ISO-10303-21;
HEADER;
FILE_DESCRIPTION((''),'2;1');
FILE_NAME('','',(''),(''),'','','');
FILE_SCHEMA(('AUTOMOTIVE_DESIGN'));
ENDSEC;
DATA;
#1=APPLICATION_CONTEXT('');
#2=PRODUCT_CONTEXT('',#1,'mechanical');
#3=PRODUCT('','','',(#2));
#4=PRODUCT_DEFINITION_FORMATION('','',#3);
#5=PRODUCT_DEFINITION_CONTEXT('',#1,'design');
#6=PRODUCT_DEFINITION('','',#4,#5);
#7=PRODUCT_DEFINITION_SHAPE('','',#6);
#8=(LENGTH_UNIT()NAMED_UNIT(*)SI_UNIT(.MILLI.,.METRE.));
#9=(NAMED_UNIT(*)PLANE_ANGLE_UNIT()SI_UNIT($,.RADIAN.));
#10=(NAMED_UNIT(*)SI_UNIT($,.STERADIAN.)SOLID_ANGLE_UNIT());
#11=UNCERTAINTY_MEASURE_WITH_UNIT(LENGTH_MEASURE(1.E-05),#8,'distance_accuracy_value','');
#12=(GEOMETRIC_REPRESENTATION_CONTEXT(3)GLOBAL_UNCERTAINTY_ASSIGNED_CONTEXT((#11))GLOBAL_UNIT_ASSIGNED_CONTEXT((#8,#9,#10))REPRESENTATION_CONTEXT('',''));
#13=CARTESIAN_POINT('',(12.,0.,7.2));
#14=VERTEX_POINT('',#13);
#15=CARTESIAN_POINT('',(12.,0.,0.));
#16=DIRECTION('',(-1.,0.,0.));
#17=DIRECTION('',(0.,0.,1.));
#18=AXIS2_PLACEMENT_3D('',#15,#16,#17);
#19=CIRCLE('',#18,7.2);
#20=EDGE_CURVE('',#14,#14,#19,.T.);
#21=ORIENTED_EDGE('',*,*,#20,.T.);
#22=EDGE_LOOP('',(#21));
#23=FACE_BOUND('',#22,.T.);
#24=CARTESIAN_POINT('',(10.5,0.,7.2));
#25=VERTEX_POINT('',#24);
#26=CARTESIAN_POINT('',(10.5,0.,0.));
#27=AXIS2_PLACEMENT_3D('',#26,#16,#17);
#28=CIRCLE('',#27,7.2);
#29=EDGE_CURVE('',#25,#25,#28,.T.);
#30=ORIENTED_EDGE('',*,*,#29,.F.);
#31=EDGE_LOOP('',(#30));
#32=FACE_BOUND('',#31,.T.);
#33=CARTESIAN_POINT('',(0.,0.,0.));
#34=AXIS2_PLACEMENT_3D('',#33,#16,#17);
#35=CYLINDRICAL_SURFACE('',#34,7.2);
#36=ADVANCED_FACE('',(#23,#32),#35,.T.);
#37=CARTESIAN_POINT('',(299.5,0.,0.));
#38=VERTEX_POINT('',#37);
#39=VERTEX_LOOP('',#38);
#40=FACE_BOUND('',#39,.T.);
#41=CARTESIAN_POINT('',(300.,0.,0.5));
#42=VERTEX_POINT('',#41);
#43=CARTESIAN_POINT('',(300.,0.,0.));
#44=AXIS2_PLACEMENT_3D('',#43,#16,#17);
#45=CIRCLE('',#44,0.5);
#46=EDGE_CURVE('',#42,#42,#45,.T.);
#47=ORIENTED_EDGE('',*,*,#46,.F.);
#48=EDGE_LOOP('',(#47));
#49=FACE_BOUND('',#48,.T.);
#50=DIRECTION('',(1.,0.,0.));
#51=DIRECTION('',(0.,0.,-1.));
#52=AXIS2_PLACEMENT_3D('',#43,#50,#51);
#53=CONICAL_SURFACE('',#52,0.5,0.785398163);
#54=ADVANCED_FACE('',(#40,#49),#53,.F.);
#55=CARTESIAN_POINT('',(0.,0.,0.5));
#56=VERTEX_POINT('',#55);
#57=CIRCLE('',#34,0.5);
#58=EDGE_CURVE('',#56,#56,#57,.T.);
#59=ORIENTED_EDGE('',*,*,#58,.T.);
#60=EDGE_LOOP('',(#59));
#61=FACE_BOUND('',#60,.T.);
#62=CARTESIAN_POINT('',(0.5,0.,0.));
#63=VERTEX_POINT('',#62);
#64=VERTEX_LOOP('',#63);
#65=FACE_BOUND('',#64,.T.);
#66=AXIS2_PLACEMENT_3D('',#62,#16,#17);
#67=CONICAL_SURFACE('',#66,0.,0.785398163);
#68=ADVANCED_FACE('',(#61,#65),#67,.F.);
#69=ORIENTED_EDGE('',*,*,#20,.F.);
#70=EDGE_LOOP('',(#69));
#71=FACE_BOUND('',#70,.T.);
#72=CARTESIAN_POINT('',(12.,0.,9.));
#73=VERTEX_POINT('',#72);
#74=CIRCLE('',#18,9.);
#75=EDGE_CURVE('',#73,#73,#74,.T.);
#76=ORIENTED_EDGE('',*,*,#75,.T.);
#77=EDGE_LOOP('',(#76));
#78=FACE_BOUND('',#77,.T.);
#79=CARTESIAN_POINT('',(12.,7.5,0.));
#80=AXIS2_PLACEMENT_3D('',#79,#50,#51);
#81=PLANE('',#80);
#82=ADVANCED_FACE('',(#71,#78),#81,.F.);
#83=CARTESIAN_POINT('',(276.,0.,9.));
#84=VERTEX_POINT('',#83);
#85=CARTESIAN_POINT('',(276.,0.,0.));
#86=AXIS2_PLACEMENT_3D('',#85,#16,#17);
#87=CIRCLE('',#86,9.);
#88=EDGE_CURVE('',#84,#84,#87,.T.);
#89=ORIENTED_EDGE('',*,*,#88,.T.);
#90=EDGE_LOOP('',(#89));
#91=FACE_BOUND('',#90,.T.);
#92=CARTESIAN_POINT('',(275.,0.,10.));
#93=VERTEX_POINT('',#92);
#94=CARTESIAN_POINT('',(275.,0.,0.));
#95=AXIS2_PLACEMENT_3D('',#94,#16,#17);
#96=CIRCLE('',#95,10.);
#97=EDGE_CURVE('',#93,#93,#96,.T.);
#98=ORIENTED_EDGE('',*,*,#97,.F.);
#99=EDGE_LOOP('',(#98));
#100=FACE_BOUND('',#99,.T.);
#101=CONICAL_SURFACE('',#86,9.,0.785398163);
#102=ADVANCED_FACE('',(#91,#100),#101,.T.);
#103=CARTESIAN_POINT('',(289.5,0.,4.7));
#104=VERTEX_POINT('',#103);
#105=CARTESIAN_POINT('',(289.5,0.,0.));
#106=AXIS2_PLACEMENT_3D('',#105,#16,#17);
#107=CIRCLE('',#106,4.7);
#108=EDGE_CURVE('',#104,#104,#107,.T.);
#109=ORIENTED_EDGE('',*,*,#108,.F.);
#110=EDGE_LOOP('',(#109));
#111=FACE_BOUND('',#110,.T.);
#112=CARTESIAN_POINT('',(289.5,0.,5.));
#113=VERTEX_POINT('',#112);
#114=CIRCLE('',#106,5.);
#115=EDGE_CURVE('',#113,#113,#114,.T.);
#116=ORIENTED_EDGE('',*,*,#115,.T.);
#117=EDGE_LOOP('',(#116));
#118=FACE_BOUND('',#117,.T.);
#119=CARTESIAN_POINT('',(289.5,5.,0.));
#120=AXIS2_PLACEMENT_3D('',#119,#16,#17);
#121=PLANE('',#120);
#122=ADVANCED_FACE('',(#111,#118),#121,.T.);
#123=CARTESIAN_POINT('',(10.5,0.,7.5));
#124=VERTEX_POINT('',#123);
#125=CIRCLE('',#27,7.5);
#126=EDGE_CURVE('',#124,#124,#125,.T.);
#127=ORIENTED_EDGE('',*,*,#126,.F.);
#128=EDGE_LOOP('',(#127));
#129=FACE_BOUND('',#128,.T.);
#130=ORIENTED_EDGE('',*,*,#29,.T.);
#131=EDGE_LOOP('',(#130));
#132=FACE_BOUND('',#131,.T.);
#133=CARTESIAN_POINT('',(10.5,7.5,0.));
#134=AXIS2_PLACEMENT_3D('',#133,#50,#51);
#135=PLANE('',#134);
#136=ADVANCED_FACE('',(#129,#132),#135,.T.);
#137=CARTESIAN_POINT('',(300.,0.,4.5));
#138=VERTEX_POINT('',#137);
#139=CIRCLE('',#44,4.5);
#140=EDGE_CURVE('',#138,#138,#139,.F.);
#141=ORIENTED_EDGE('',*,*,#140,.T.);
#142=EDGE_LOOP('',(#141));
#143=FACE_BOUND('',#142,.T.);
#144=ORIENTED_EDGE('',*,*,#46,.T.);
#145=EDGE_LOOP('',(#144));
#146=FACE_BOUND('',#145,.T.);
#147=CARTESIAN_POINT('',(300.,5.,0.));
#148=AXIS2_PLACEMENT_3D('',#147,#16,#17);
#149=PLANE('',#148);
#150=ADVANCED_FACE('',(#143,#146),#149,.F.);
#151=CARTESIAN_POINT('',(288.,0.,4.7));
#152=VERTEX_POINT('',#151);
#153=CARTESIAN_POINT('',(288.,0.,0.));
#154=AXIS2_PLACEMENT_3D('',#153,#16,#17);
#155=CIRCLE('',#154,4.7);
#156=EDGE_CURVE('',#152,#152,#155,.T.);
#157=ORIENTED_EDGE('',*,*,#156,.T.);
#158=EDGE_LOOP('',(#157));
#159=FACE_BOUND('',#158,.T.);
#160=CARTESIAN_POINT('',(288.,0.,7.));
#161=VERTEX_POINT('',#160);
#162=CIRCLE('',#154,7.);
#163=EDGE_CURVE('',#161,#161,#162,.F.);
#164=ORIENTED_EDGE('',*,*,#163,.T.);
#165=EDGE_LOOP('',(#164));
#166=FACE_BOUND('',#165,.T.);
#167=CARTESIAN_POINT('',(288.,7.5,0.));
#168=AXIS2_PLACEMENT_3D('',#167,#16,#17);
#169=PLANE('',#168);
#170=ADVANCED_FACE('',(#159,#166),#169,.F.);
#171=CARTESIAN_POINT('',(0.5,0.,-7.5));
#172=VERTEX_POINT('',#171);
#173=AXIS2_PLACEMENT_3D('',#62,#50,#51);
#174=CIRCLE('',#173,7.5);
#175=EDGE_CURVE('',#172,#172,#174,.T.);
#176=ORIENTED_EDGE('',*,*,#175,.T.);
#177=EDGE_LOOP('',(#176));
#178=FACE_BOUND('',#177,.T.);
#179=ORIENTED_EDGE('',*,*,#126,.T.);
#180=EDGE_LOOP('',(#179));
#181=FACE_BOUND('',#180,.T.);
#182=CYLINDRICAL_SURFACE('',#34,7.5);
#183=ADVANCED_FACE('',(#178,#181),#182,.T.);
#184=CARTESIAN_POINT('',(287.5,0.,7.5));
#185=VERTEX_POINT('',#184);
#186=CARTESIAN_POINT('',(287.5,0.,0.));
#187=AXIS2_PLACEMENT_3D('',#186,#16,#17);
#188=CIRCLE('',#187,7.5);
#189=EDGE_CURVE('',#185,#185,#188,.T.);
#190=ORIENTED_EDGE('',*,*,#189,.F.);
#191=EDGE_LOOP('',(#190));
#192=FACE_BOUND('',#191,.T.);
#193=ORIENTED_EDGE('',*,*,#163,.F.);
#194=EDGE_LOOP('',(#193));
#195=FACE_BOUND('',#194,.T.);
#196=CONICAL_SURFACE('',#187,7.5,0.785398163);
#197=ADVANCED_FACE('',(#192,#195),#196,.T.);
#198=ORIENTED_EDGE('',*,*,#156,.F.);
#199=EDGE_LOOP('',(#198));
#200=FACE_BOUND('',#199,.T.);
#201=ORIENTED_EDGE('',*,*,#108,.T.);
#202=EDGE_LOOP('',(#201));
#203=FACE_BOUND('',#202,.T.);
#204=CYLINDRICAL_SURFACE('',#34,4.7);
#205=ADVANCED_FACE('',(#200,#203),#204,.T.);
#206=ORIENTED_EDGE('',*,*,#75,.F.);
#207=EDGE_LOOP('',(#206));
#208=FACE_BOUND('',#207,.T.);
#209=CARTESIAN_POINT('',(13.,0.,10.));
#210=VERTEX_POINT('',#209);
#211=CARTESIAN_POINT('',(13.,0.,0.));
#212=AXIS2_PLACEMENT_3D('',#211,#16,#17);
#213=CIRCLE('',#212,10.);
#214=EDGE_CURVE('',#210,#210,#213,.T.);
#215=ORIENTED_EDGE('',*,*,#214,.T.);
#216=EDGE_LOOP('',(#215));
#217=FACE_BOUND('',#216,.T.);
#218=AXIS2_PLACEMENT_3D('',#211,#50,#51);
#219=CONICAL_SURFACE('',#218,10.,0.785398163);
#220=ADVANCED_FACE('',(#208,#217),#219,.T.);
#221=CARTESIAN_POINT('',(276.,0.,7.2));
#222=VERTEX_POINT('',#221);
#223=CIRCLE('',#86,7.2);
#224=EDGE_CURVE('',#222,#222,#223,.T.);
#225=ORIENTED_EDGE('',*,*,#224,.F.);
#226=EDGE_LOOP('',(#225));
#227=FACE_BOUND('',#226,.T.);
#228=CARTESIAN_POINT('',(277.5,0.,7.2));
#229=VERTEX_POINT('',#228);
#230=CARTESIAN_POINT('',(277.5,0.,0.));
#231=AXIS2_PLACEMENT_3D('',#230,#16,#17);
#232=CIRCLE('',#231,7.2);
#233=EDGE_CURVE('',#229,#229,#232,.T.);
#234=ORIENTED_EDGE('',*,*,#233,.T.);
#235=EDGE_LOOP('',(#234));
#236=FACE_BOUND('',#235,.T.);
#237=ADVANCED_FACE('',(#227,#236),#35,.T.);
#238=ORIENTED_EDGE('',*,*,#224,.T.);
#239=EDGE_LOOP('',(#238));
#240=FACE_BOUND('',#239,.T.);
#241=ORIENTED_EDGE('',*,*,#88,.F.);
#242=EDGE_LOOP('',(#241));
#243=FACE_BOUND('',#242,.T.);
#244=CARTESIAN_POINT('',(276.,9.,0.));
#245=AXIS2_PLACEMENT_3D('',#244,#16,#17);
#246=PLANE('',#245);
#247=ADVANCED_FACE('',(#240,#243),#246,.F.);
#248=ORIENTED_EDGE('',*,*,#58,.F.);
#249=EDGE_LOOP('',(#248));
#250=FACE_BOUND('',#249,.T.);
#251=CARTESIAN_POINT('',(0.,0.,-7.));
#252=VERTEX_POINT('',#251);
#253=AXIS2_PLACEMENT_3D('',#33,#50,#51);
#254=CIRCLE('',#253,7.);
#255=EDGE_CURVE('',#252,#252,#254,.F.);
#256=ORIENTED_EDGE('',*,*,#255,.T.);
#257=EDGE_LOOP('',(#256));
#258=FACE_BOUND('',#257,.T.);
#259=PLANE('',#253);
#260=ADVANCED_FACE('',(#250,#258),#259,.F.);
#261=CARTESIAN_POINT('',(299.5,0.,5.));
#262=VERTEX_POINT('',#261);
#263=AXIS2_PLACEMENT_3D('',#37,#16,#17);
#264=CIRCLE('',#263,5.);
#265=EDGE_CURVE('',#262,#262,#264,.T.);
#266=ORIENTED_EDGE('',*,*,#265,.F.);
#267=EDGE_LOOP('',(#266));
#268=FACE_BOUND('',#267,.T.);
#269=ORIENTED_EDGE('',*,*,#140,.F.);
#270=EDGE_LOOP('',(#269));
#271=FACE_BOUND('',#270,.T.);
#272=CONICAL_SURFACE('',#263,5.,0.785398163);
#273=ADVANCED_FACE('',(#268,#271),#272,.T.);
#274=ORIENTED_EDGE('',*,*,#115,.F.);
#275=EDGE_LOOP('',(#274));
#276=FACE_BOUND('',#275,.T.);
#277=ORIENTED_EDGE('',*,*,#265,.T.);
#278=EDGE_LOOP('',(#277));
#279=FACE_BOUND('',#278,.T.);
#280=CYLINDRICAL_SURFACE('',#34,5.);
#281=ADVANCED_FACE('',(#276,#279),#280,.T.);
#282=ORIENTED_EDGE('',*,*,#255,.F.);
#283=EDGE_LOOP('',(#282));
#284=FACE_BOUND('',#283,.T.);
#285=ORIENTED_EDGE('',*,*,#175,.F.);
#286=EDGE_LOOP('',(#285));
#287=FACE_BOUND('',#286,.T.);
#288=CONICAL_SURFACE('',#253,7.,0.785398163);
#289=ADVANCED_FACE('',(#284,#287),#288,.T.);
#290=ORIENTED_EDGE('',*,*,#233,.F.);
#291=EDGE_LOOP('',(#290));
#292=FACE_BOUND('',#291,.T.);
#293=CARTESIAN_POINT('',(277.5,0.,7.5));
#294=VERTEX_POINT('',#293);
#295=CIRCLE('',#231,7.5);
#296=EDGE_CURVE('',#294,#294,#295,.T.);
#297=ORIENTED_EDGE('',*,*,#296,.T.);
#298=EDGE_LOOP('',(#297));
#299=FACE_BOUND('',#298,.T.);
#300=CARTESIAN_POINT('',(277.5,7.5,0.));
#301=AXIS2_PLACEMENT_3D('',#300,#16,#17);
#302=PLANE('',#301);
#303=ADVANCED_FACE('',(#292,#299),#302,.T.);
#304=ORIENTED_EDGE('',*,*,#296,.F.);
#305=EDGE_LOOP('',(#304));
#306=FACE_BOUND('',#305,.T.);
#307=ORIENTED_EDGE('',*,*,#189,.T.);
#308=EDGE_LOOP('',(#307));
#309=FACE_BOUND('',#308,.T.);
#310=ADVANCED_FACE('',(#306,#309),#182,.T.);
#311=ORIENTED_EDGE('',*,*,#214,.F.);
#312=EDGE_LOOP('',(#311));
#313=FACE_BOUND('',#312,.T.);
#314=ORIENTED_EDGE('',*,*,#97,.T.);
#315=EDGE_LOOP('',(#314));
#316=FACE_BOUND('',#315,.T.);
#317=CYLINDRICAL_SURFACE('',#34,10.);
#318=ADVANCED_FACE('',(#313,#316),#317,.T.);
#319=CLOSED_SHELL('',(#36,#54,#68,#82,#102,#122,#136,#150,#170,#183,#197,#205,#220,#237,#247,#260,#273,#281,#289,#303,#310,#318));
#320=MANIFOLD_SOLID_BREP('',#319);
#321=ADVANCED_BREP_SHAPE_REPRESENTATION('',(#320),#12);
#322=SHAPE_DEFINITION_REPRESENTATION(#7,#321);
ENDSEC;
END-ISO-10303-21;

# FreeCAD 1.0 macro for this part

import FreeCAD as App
import Part
import Sketcher


def edges_at(feature, points):
    """Names of the edges that pass closest to the given points."""
    edges = feature.Shape.Edges
    near = lambda p: min(range(len(edges)), key=lambda i: edges[i].distToShape(Part.Vertex(*p))[0])
    return sorted({f"Edge{near(p) + 1}" for p in points})


def add_polygon(sketch, points):
    """Adds a closed chain of lines whose ends are joined by coincident constraints."""
    first, n = sketch.GeometryCount, len(points)
    for a, b in zip(points, points[1:] + points[:1]):
        sketch.addGeometry(Part.LineSegment(App.Vector(*a, 0), App.Vector(*b, 0)), False)
    for i in range(n):
        sketch.addConstraint(Sketcher.Constraint("Coincident", first + i, 2, first + (i + 1) % n, 1))

doc = App.newDocument("Part")
body = doc.addObject("PartDesign::Body", "Body")

# Sketch on XY plane
sketch1 = body.newObject("Sketcher::SketchObject", "Sketch")
sketch1.AttachmentSupport = (doc.getObject("XY_Plane"), [""])
sketch1.MapMode = "FlatFace"
add_polygon(sketch1, [(0, 7.5), (0, 0), (300, 0), (300, 5), (288, 5), (288, 7.5), (276, 7.5), (276, 9), (275, 10), (13, 10), (12, 9), (12, 7.5)])  # lines 0-11
sketch1.addConstraint(Sketcher.Constraint("Vertical", 0))
sketch1.addConstraint(Sketcher.Constraint("Horizontal", 1))
sketch1.addConstraint(Sketcher.Constraint("Vertical", 2))
sketch1.addConstraint(Sketcher.Constraint("Horizontal", 3))
sketch1.addConstraint(Sketcher.Constraint("Vertical", 4))
sketch1.addConstraint(Sketcher.Constraint("Horizontal", 5))
sketch1.addConstraint(Sketcher.Constraint("Vertical", 6))
sketch1.addConstraint(Sketcher.Constraint("Horizontal", 8))
sketch1.addConstraint(Sketcher.Constraint("Vertical", 10))
sketch1.addConstraint(Sketcher.Constraint("Horizontal", 11))
sketch1.addConstraint(Sketcher.Constraint("Coincident", 0, 2, -1, 1))
sketch1.addConstraint(Sketcher.Constraint("Perpendicular", 7, 9))
sketch1.addConstraint(Sketcher.Constraint("Horizontal", 6, 2, 9, 2))
sketch1.addConstraint(Sketcher.Constraint("Horizontal", 5, 2, 10, 2))
sketch1.addConstraint(Sketcher.Constraint("Equal", 3, 5))
sketch1.addConstraint(Sketcher.Constraint("Equal", 5, 11))
sketch1.addConstraint(Sketcher.Constraint("Equal", 7, 9))
sketch1.addConstraint(Sketcher.Constraint("DistanceX", 1, 1, 1, 2, 300.0))
sketch1.addConstraint(Sketcher.Constraint("DistanceX", 3, 2, 3, 1, 12.0))
sketch1.addConstraint(Sketcher.Constraint("DistanceX", 8, 2, 8, 1, 262.0))
sketch1.addConstraint(Sketcher.Constraint("DistanceY", 2, 1, 2, 2, 5.0))
sketch1.addConstraint(Sketcher.Constraint("DistanceY", 0, 2, 0, 1, 7.5))
sketch1.addConstraint(Sketcher.Constraint("DistanceY", 6, 1, 6, 2, 1.5))
revolution = body.newObject("PartDesign::Revolution", "Revolution")
revolution.Profile = sketch1
revolution.ReferenceAxis = (sketch1, ["H_Axis"])
revolution.Angle = 360
doc.recompute()

chamfer = body.newObject("PartDesign::Chamfer", "Chamfer")
chamfer.Base = (revolution, edges_at(revolution, [(288, 0, -7.5), (300, 0, -5), (0, 0, -7.5)]))
chamfer.Size = 0.5

# Sketch on XY plane
sketch2 = body.newObject("Sketcher::SketchObject", "Sketch001")
sketch2.AttachmentSupport = (doc.getObject("XY_Plane"), [""])
sketch2.MapMode = "FlatFace"
add_polygon(sketch2, [(0, 0.5), (0, 0), (0.5, 0)])  # lines 0-2
add_polygon(sketch2, [(300, 0), (300, 0.5), (299.5, 0)])  # lines 3-5
sketch2.addConstraint(Sketcher.Constraint("Vertical", 0))
sketch2.addConstraint(Sketcher.Constraint("Horizontal", 1))
sketch2.addConstraint(Sketcher.Constraint("Vertical", 3))
sketch2.addConstraint(Sketcher.Constraint("Horizontal", 5))
sketch2.addConstraint(Sketcher.Constraint("Coincident", 0, 2, -1, 1))
sketch2.addConstraint(Sketcher.Constraint("PointOnObject", 4, 2, -1))
sketch2.addConstraint(Sketcher.Constraint("Perpendicular", 2, 4))
sketch2.addConstraint(Sketcher.Constraint("Horizontal", 2, 2, 3, 2))
sketch2.addConstraint(Sketcher.Constraint("Equal", 1, 5))
sketch2.addConstraint(Sketcher.Constraint("DistanceX", 1, 1, 1, 2, 0.5))
sketch2.addConstraint(Sketcher.Constraint("DistanceX", -1, 1, 3, 2, 300.0))
groove = body.newObject("PartDesign::Groove", "Groove")
groove.Profile = sketch2
groove.ReferenceAxis = (sketch2, ["H_Axis"])
groove.Angle = 360

# Sketch on XY plane
sketch3 = body.newObject("Sketcher::SketchObject", "Sketch002")
sketch3.AttachmentSupport = (doc.getObject("XY_Plane"), [""])
sketch3.MapMode = "FlatFace"
add_polygon(sketch3, [(10.5, 7.5), (10.5, 7.2), (12, 7.2), (12, 7.5)])  # lines 0-3
add_polygon(sketch3, [(276, 7.5), (276, 7.2), (277.5, 7.2), (277.5, 7.5)])  # lines 4-7
add_polygon(sketch3, [(288, 5), (288, 4.7), (289.5, 4.7), (289.5, 5)])  # lines 8-11
sketch3.addConstraint(Sketcher.Constraint("Vertical", 0))
sketch3.addConstraint(Sketcher.Constraint("Horizontal", 1))
sketch3.addConstraint(Sketcher.Constraint("Vertical", 2))
sketch3.addConstraint(Sketcher.Constraint("Horizontal", 3))
sketch3.addConstraint(Sketcher.Constraint("Vertical", 4))
sketch3.addConstraint(Sketcher.Constraint("Horizontal", 5))
sketch3.addConstraint(Sketcher.Constraint("Vertical", 6))
sketch3.addConstraint(Sketcher.Constraint("Horizontal", 7))
sketch3.addConstraint(Sketcher.Constraint("Vertical", 8))
sketch3.addConstraint(Sketcher.Constraint("Horizontal", 9))
sketch3.addConstraint(Sketcher.Constraint("Vertical", 10))
sketch3.addConstraint(Sketcher.Constraint("Horizontal", 11))
sketch3.addConstraint(Sketcher.Constraint("Horizontal", 1, 2, 4, 2))
sketch3.addConstraint(Sketcher.Constraint("Horizontal", 3, 2, 6, 2))
sketch3.addConstraint(Sketcher.Constraint("Equal", 3, 5))
sketch3.addConstraint(Sketcher.Constraint("Equal", 7, 9))
sketch3.addConstraint(Sketcher.Constraint("Equal", 6, 8))
sketch3.addConstraint(Sketcher.Constraint("DistanceX", 1, 1, 1, 2, 1.5))
sketch3.addConstraint(Sketcher.Constraint("DistanceY", 0, 2, 0, 1, 0.3))
sketch3.addConstraint(Sketcher.Constraint("DistanceX", -1, 1, 1, 2, 12.0))
sketch3.addConstraint(Sketcher.Constraint("DistanceX", -1, 1, 4, 2, 276.0))
sketch3.addConstraint(Sketcher.Constraint("DistanceX", -1, 1, 8, 2, 288.0))
sketch3.addConstraint(Sketcher.Constraint("DistanceY", -1, 1, 10, 2, 5.0))
sketch3.addConstraint(Sketcher.Constraint("DistanceY", -1, 1, 0, 2, 7.2))
groove2 = body.newObject("PartDesign::Groove", "Groove001")
groove2.Profile = sketch3
groove2.ReferenceAxis = (sketch3, ["H_Axis"])
groove2.Angle = 360

doc.recompute()
